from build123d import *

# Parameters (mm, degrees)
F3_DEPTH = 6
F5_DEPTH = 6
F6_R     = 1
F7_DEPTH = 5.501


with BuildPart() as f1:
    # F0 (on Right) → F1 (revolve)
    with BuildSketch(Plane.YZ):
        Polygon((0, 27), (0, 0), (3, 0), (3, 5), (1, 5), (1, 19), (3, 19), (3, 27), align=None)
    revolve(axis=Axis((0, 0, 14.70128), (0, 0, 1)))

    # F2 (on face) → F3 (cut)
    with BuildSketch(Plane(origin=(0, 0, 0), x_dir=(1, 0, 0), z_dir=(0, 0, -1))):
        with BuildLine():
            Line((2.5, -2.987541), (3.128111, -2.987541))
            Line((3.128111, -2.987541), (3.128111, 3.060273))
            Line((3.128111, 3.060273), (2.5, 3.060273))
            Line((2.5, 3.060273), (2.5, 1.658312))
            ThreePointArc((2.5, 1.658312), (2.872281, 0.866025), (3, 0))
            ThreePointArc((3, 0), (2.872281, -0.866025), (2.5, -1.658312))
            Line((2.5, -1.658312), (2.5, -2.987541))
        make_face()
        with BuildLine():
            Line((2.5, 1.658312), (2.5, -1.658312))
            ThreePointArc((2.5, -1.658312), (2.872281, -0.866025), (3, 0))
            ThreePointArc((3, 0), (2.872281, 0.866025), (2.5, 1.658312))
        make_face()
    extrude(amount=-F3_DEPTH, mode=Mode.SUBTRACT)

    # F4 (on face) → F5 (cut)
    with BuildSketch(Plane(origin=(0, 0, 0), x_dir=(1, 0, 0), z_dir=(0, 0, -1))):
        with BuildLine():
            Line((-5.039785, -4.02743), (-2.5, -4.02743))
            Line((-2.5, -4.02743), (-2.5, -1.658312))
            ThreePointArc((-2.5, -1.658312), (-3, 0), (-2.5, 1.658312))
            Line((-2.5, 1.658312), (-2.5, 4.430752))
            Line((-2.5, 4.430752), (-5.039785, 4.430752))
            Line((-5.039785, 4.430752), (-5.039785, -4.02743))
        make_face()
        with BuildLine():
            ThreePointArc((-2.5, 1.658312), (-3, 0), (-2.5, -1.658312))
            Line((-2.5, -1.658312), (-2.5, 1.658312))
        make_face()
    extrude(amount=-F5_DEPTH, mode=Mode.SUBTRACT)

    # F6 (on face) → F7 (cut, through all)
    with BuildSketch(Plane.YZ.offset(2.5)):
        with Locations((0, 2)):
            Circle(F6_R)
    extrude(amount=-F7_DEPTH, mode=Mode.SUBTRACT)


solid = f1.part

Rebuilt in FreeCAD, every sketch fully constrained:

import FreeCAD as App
import Part
import Sketcher
from FreeCAD import Vector

doc = App.newDocument("Part")
body = doc.addObject("PartDesign::Body", "Body")

# Sketch on YZ plane
sketch1 = body.newObject("Sketcher::SketchObject", "Sketch")
sketch1.AttachmentSupport = (doc.getObject("YZ_Plane"), [""])
sketch1.MapMode = "FlatFace"
sketch1.addGeometry([
    Part.LineSegment(Vector(0, 27, 0), Vector(0, 0, 0)),  # 0
    Part.LineSegment(Vector(0, 0, 0), Vector(3, 0, 0)),  # 1
    Part.LineSegment(Vector(3, 0, 0), Vector(3, 5, 0)),  # 2
    Part.LineSegment(Vector(3, 5, 0), Vector(1, 5, 0)),  # 3
    Part.LineSegment(Vector(1, 5, 0), Vector(1, 19, 0)),  # 4
    Part.LineSegment(Vector(1, 19, 0), Vector(3, 19, 0)),  # 5
    Part.LineSegment(Vector(3, 19, 0), Vector(3, 27, 0)),  # 6
    Part.LineSegment(Vector(3, 27, 0), Vector(0, 27, 0)),  # 7
], False)
sketch1.addConstraint([
    Sketcher.Constraint("Coincident", 0, 2, 1, 1),
    Sketcher.Constraint("Coincident", 1, 2, 2, 1),
    Sketcher.Constraint("Coincident", 2, 2, 3, 1),
    Sketcher.Constraint("Coincident", 3, 2, 4, 1),
    Sketcher.Constraint("Coincident", 4, 2, 5, 1),
    Sketcher.Constraint("Coincident", 5, 2, 6, 1),
    Sketcher.Constraint("Coincident", 6, 2, 7, 1),
    Sketcher.Constraint("Coincident", 7, 2, 0, 1),
    Sketcher.Constraint("Vertical", 0),
    Sketcher.Constraint("Horizontal", 1),
    Sketcher.Constraint("Vertical", 2),
    Sketcher.Constraint("Horizontal", 3),
    Sketcher.Constraint("Vertical", 4),
    Sketcher.Constraint("Horizontal", 5),
    Sketcher.Constraint("Vertical", 6),
    Sketcher.Constraint("Horizontal", 7),
    Sketcher.Constraint("Coincident", 0, 2, -1, 1),
    Sketcher.Constraint("Vertical", 2, 2, 5, 2),
    Sketcher.Constraint("DistanceX", 1, 1, 1, 2, 3.0),
    Sketcher.Constraint("DistanceX", 3, 2, 3, 1, 2.0),
    Sketcher.Constraint("DistanceY", 0, 2, 0, 1, 27.0),
    Sketcher.Constraint("DistanceY", 2, 1, 2, 2, 5.0),
    Sketcher.Constraint("DistanceY", 4, 1, 4, 2, 14.0),
])
revolution = body.newObject("PartDesign::Revolution", "Revolution")
revolution.Profile = sketch1
revolution.ReferenceAxis = (sketch1, ["V_Axis"])
revolution.Angle = 360

# Sketch on XY plane
sketch2 = body.newObject("Sketcher::SketchObject", "Sketch001")
sketch2.AttachmentSupport = (doc.getObject("XY_Plane"), [""])
sketch2.MapMode = "FlatFace"
sketch2.addGeometry([
    Part.LineSegment(Vector(2.5, 3, 0), Vector(3.1, 3, 0)),
    Part.LineSegment(Vector(3.1, 3, 0), Vector(3.1, -3.1, 0)),
    Part.LineSegment(Vector(3.1, -3.1, 0), Vector(2.5, -3.1, 0)),
    Part.LineSegment(Vector(2.5, -3.1, 0), Vector(2.5, 3, 0)),
], False)
sketch2.addConstraint([
    Sketcher.Constraint("Coincident", 0, 2, 1, 1),
    Sketcher.Constraint("Coincident", 1, 2, 2, 1),
    Sketcher.Constraint("Coincident", 2, 2, 3, 1),
    Sketcher.Constraint("Coincident", 3, 2, 0, 1),
    Sketcher.Constraint("Horizontal", 0),
    Sketcher.Constraint("Vertical", 1),
    Sketcher.Constraint("Horizontal", 2),
    Sketcher.Constraint("Vertical", 3),
    Sketcher.Constraint("DistanceX", -1, 1, 2, 2, 2.5),
    Sketcher.Constraint("DistanceX", 0, 1, 0, 2, 0.628111),
    Sketcher.Constraint("DistanceY", 1, 2, 1, 1, 6.047814),
    Sketcher.Constraint("DistanceY", -1, 1, 0, 2, 2.987541),
])
pocket1 = body.newObject("PartDesign::Pocket", "Pocket")
pocket1.Profile = sketch2
pocket1.Length = 6
pocket1.Reversed = True

# Sketch on XY plane
sketch3 = body.newObject("Sketcher::SketchObject", "Sketch002")
sketch3.AttachmentSupport = (doc.getObject("XY_Plane"), [""])
sketch3.MapMode = "FlatFace"
sketch3.addGeometry([
    Part.LineSegment(Vector(-5, 4, 0), Vector(-2.5, 4, 0)),
    Part.LineSegment(Vector(-2.5, 4, 0), Vector(-2.5, -4.4, 0)),
    Part.LineSegment(Vector(-2.5, -4.4, 0), Vector(-5, -4.4, 0)),
    Part.LineSegment(Vector(-5, -4.4, 0), Vector(-5, 4, 0)),
], False)
sketch3.addConstraint([
    Sketcher.Constraint("Coincident", 0, 2, 1, 1),
    Sketcher.Constraint("Coincident", 1, 2, 2, 1),
    Sketcher.Constraint("Coincident", 2, 2, 3, 1),
    Sketcher.Constraint("Coincident", 3, 2, 0, 1),
    Sketcher.Constraint("Horizontal", 0),
    Sketcher.Constraint("Vertical", 1),
    Sketcher.Constraint("Horizontal", 2),
    Sketcher.Constraint("Vertical", 3),
    Sketcher.Constraint("DistanceX", 0, 2, -1, 1, 2.5),
    Sketcher.Constraint("DistanceX", 0, 1, 0, 2, 2.539785),
    Sketcher.Constraint("DistanceY", 1, 2, 1, 1, 8.458182),
    Sketcher.Constraint("DistanceY", -1, 1, 0, 2, 4.02743),
])
pocket2 = body.newObject("PartDesign::Pocket", "Pocket001")
pocket2.Profile = sketch3
pocket2.Length = 6
pocket2.Reversed = True

# Sketch on YZ plane
sketch4 = body.newObject("Sketcher::SketchObject", "Sketch003")
sketch4.AttachmentSupport = (doc.getObject("YZ_Plane"), [""])
sketch4.MapMode = "FlatFace"
sketch4.AttachmentOffset = App.Placement(Vector(0, 0, 2.5), App.Rotation())
sketch4.addGeometry(Part.Circle(Vector(0, 2, 0), Vector(0, 0, 1), 1), False)
sketch4.addConstraint([
    Sketcher.Constraint("PointOnObject", 0, 3, -2),
    Sketcher.Constraint("Diameter", 0, 2.0),
    Sketcher.Constraint("DistanceY", -1, 1, 0, 3, 2.0),
])
pocket3 = body.newObject("PartDesign::Pocket", "Pocket002")
pocket3.Profile = sketch4
pocket3.Type = "ThroughAll"

doc.recompute()
